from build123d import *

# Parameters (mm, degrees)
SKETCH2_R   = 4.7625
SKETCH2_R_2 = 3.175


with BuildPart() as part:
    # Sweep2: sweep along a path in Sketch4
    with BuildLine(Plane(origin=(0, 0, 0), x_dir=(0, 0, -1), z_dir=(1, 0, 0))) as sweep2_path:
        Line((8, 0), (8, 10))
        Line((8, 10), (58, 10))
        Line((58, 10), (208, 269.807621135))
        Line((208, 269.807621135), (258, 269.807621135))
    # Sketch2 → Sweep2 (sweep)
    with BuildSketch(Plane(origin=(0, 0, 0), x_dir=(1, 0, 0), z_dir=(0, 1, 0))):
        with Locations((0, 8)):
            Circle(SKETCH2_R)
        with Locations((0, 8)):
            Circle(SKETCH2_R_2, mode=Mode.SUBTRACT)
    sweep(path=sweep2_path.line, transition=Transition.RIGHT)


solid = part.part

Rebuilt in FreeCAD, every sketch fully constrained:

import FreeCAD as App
import Part
import Sketcher

V = App.Vector
Q = App.Units.Quantity

doc = App.newDocument("Part")
body = doc.addObject("PartDesign::Body", "Body")

sketch1 = body.newObject("Sketcher::SketchObject", "Sketch")
sketch1.AttachmentSupport = (doc.getObject("XZ_Plane"), [""])
sketch1.MapMode = "FlatFace"
sketch1.addGeometry([
    Part.Circle(V(0, -8, 0), V(0, 0, 1), 4.8),
    Part.Circle(V(0, -8, 0), V(0, 0, 1), 3.2),
], False)
sketch1.addConstraint([
    Sketcher.Constraint("Coincident", 1, 3, 0, 3),
    Sketcher.Constraint("PointOnObject", 0, 3, -2),
    Sketcher.Constraint("Diameter", 1, 6.35),
    Sketcher.Constraint("Diameter", 0, 9.525),
    Sketcher.Constraint("DistanceY", 0, 3, -1, 1, 8.0),
])

sketch2 = body.newObject("Sketcher::SketchObject", "Sketch001")
sketch2.AttachmentSupport = (doc.getObject("YZ_Plane"), [""])
sketch2.MapMode = "FlatFace"
sketch2.addGeometry([
    Part.LineSegment(V(0, -8, 0), V(10, -8, 0)),
    Part.LineSegment(V(10, -8, 0), V(10, -58, 0)),
    Part.LineSegment(V(10, -58, 0), V(270, -208, 0)),
    Part.LineSegment(V(270, -208, 0), V(270, -258, 0)),
], False)
sketch2.addConstraint([
    Sketcher.Constraint("Coincident", 0, 2, 1, 1),
    Sketcher.Constraint("Coincident", 1, 2, 2, 1),
    Sketcher.Constraint("Coincident", 2, 2, 3, 1),
    Sketcher.Constraint("Horizontal", 0),
    Sketcher.Constraint("Vertical", 1),
    Sketcher.Constraint("Vertical", 3),
    Sketcher.Constraint("PointOnObject", 0, 1, -2),
    Sketcher.Constraint("Equal", 1, 3),
    Sketcher.Constraint("DistanceX", 0, 1, 0, 2, 10.0),
    Sketcher.Constraint("DistanceY", 1, 2, 1, 1, 50.0),
    Sketcher.Constraint("Angle", 2, Q("-30 deg")),
    Sketcher.Constraint("Distance", 2, 300.0),
    Sketcher.Constraint("DistanceY", 0, 1, -1, 1, 8.0),
])
doc.recompute()

additivepipe = body.newObject("PartDesign::AdditivePipe", "AdditivePipe")
additivepipe.Profile = sketch1
additivepipe.Spine = (sketch2, ["Edge1", "Edge2", "Edge3", "Edge4"])
additivepipe.Transition = "Right corner"

doc.recompute()
